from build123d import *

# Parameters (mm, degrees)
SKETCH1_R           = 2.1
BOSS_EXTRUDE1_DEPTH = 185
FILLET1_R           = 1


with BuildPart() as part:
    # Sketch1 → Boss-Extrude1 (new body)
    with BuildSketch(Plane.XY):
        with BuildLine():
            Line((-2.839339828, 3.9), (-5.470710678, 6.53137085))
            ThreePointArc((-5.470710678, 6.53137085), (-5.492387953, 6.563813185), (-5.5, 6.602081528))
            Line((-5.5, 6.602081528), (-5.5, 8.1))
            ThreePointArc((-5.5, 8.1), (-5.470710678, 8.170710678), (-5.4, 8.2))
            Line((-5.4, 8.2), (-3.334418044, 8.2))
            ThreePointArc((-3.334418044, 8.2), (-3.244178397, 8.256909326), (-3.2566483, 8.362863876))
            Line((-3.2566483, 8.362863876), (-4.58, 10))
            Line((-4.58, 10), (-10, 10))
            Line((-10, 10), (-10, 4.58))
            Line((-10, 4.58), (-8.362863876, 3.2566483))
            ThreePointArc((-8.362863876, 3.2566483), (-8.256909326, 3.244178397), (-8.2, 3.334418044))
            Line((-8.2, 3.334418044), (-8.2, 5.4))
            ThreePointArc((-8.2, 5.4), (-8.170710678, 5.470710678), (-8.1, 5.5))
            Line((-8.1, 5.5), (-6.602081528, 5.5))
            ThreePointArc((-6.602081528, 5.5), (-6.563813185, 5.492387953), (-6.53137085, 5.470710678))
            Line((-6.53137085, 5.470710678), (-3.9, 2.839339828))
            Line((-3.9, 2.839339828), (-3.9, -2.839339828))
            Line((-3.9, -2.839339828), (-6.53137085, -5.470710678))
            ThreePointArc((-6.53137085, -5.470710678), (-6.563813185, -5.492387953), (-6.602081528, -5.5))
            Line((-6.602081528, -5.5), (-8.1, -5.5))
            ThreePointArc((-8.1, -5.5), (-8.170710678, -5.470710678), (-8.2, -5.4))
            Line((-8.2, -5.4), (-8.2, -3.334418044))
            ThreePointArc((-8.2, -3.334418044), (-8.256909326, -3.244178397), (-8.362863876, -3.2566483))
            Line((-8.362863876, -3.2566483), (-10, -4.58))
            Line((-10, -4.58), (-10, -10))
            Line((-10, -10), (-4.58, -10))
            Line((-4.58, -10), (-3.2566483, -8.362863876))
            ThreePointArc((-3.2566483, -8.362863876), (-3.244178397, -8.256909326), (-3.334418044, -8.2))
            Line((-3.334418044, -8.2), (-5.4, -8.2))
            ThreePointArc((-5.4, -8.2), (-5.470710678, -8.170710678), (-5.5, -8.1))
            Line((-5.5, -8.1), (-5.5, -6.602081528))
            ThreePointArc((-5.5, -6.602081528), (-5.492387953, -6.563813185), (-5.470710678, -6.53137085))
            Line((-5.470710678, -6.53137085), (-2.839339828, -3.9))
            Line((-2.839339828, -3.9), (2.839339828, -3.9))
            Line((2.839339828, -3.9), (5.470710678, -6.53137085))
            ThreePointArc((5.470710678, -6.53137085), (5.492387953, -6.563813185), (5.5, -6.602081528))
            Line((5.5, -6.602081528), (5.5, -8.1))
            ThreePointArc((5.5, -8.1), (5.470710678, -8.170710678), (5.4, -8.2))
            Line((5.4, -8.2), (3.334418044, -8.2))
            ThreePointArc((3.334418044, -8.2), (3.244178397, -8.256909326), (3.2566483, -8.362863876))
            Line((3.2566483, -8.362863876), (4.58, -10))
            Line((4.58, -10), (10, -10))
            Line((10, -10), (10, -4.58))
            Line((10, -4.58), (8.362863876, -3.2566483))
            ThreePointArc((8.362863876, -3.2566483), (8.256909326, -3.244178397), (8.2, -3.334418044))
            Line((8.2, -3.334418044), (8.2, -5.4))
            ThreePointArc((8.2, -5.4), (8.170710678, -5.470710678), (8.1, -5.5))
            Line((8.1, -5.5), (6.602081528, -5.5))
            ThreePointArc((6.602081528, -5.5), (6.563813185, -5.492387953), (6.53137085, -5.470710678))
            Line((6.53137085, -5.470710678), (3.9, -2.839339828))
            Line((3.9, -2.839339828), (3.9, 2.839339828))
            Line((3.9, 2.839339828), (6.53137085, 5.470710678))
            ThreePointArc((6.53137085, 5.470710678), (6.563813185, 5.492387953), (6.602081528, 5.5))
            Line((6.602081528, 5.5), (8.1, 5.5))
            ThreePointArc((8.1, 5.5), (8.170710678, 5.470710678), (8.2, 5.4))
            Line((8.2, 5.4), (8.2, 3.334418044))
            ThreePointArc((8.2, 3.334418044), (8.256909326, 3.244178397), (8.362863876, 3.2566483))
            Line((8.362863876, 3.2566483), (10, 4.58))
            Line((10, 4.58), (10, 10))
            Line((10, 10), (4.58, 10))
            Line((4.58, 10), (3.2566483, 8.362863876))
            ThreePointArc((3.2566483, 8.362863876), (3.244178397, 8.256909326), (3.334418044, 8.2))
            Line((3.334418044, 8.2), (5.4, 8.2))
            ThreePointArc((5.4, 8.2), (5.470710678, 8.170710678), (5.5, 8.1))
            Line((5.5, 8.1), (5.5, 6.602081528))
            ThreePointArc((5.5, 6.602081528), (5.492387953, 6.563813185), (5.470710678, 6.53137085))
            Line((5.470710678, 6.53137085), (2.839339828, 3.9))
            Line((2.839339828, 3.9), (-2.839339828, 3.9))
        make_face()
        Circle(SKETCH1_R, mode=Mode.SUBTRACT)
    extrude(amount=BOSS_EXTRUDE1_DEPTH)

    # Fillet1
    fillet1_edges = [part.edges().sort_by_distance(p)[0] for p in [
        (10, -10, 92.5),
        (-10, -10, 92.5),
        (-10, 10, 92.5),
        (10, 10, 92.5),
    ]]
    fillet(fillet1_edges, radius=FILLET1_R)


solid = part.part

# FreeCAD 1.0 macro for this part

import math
import FreeCAD as App
import Part
import Sketcher
Q = App.Units.Quantity


def edges_at(feature, points):
    """Names of the edges that pass closest to the given points."""
    edges = feature.Shape.Edges
    near = lambda p: min(range(len(edges)), key=lambda i: edges[i].distToShape(Part.Vertex(*p))[0])
    return sorted({f"Edge{near(p) + 1}" for p in points})

doc = App.newDocument("Part")
body = doc.addObject("PartDesign::Body", "Body")

# Sketch on XY plane
sketch1 = body.newObject("Sketcher::SketchObject", "Sketch")
sketch1.AttachmentSupport = (doc.getObject("XY_Plane"), [""])
sketch1.MapMode = "FlatFace"
sketch1.addGeometry(Part.LineSegment(App.Vector(-2.84, 3.9, 0), App.Vector(-5.47, 6.53, 0)), False)
sketch1.addGeometry(Part.ArcOfCircle(Part.Circle(App.Vector(-5.4, 6.6, 0), App.Vector(0, 0, 1), 0.1), math.radians(-180), math.radians(-135)), False)
sketch1.addGeometry(Part.LineSegment(App.Vector(-5.5, 6.6, 0), App.Vector(-5.5, 8.1, 0)), False)
sketch1.addGeometry(Part.ArcOfCircle(Part.Circle(App.Vector(-5.4, 8.1, 0), App.Vector(0, 0, 1), 0.1), math.radians(90), math.radians(180)), False)
sketch1.addGeometry(Part.LineSegment(App.Vector(-5.4, 8.2, 0), App.Vector(-3.33, 8.2, 0)), False)
sketch1.addGeometry(Part.ArcOfCircle(Part.Circle(App.Vector(-3.33, 8.3, 0), App.Vector(0, 0, 1), 0.1), math.radians(-90), math.radians(39)), False)
sketch1.addGeometry(Part.LineSegment(App.Vector(-3.26, 8.36, 0), App.Vector(-4.58, 10, 0)), False)
sketch1.addGeometry(Part.LineSegment(App.Vector(-4.58, 10, 0), App.Vector(-10, 10, 0)), False)
sketch1.addGeometry(Part.LineSegment(App.Vector(-10, 10, 0), App.Vector(-10, 4.58, 0)), False)
sketch1.addGeometry(Part.LineSegment(App.Vector(-10, 4.58, 0), App.Vector(-8.36, 3.26, 0)), False)
sketch1.addGeometry(Part.ArcOfCircle(Part.Circle(App.Vector(-8.3, 3.33, 0), App.Vector(0, 0, 1), 0.1), math.radians(-129), math.radians(0)), False)
sketch1.addGeometry(Part.LineSegment(App.Vector(-8.2, 3.33, 0), App.Vector(-8.2, 5.4, 0)), False)
sketch1.addGeometry(Part.ArcOfCircle(Part.Circle(App.Vector(-8.1, 5.4, 0), App.Vector(0, 0, 1), 0.1), math.radians(90), math.radians(180)), False)
sketch1.addGeometry(Part.LineSegment(App.Vector(-8.1, 5.5, 0), App.Vector(-6.6, 5.5, 0)), False)
sketch1.addGeometry(Part.ArcOfCircle(Part.Circle(App.Vector(-6.6, 5.4, 0), App.Vector(0, 0, 1), 0.1), math.radians(45), math.radians(90)), False)
sketch1.addGeometry(Part.LineSegment(App.Vector(-6.53, 5.47, 0), App.Vector(-3.9, 2.84, 0)), False)
sketch1.addGeometry(Part.LineSegment(App.Vector(-3.9, 2.84, 0), App.Vector(-3.9, -2.84, 0)), False)
sketch1.addGeometry(Part.LineSegment(App.Vector(-3.9, -2.84, 0), App.Vector(-6.53, -5.47, 0)), False)
sketch1.addGeometry(Part.ArcOfCircle(Part.Circle(App.Vector(-6.6, -5.4, 0), App.Vector(0, 0, 1), 0.1), math.radians(-90), math.radians(-45)), False)
sketch1.addGeometry(Part.LineSegment(App.Vector(-6.6, -5.5, 0), App.Vector(-8.1, -5.5, 0)), False)
sketch1.addGeometry(Part.ArcOfCircle(Part.Circle(App.Vector(-8.1, -5.4, 0), App.Vector(0, 0, 1), 0.1), math.radians(180), math.radians(270)), False)
sketch1.addGeometry(Part.LineSegment(App.Vector(-8.2, -5.4, 0), App.Vector(-8.2, -3.33, 0)), False)
sketch1.addGeometry(Part.ArcOfCircle(Part.Circle(App.Vector(-8.3, -3.33, 0), App.Vector(0, 0, 1), 0.1), math.radians(0), math.radians(129)), False)
sketch1.addGeometry(Part.LineSegment(App.Vector(-8.36, -3.26, 0), App.Vector(-10, -4.58, 0)), False)
sketch1.addGeometry(Part.LineSegment(App.Vector(-10, -4.58, 0), App.Vector(-10, -10, 0)), False)
sketch1.addGeometry(Part.LineSegment(App.Vector(-10, -10, 0), App.Vector(-4.58, -10, 0)), False)
sketch1.addGeometry(Part.LineSegment(App.Vector(-4.58, -10, 0), App.Vector(-3.26, -8.36, 0)), False)
sketch1.addGeometry(Part.ArcOfCircle(Part.Circle(App.Vector(-3.33, -8.3, 0), App.Vector(0, 0, 1), 0.1), math.radians(-39), math.radians(90)), False)
sketch1.addGeometry(Part.LineSegment(App.Vector(-3.33, -8.2, 0), App.Vector(-5.4, -8.2, 0)), False)
sketch1.addGeometry(Part.ArcOfCircle(Part.Circle(App.Vector(-5.4, -8.1, 0), App.Vector(0, 0, 1), 0.1), math.radians(180), math.radians(270)), False)
sketch1.addGeometry(Part.LineSegment(App.Vector(-5.5, -8.1, 0), App.Vector(-5.5, -6.6, 0)), False)
sketch1.addGeometry(Part.ArcOfCircle(Part.Circle(App.Vector(-5.4, -6.6, 0), App.Vector(0, 0, 1), 0.1), math.radians(135), math.radians(180)), False)
sketch1.addGeometry(Part.LineSegment(App.Vector(-5.47, -6.53, 0), App.Vector(-2.84, -3.9, 0)), False)
sketch1.addGeometry(Part.LineSegment(App.Vector(-2.84, -3.9, 0), App.Vector(2.84, -3.9, 0)), False)
sketch1.addGeometry(Part.LineSegment(App.Vector(2.84, -3.9, 0), App.Vector(5.47, -6.53, 0)), False)
sketch1.addGeometry(Part.ArcOfCircle(Part.Circle(App.Vector(5.4, -6.6, 0), App.Vector(0, 0, 1), 0.1), math.radians(0), math.radians(45)), False)
sketch1.addGeometry(Part.LineSegment(App.Vector(5.5, -6.6, 0), App.Vector(5.5, -8.1, 0)), False)
sketch1.addGeometry(Part.ArcOfCircle(Part.Circle(App.Vector(5.4, -8.1, 0), App.Vector(0, 0, 1), 0.1), math.radians(-90), math.radians(0)), False)
sketch1.addGeometry(Part.LineSegment(App.Vector(5.4, -8.2, 0), App.Vector(3.33, -8.2, 0)), False)
sketch1.addGeometry(Part.ArcOfCircle(Part.Circle(App.Vector(3.33, -8.3, 0), App.Vector(0, 0, 1), 0.1), math.radians(90), math.radians(219)), False)
sketch1.addGeometry(Part.LineSegment(App.Vector(3.26, -8.36, 0), App.Vector(4.58, -10, 0)), False)
sketch1.addGeometry(Part.LineSegment(App.Vector(4.58, -10, 0), App.Vector(10, -10, 0)), False)
sketch1.addGeometry(Part.LineSegment(App.Vector(10, -10, 0), App.Vector(10, -4.58, 0)), False)
sketch1.addGeometry(Part.LineSegment(App.Vector(10, -4.58, 0), App.Vector(8.36, -3.26, 0)), False)
sketch1.addGeometry(Part.ArcOfCircle(Part.Circle(App.Vector(8.3, -3.33, 0), App.Vector(0, 0, 1), 0.1), math.radians(51), math.radians(180)), False)
sketch1.addGeometry(Part.LineSegment(App.Vector(8.2, -3.33, 0), App.Vector(8.2, -5.4, 0)), False)
sketch1.addGeometry(Part.ArcOfCircle(Part.Circle(App.Vector(8.1, -5.4, 0), App.Vector(0, 0, 1), 0.1), math.radians(-90), math.radians(0)), False)
sketch1.addGeometry(Part.LineSegment(App.Vector(8.1, -5.5, 0), App.Vector(6.6, -5.5, 0)), False)
sketch1.addGeometry(Part.ArcOfCircle(Part.Circle(App.Vector(6.6, -5.4, 0), App.Vector(0, 0, 1), 0.1), math.radians(-135), math.radians(-90)), False)
sketch1.addGeometry(Part.LineSegment(App.Vector(6.53, -5.47, 0), App.Vector(3.9, -2.84, 0)), False)
sketch1.addGeometry(Part.LineSegment(App.Vector(3.9, -2.84, 0), App.Vector(3.9, 2.84, 0)), False)
sketch1.addGeometry(Part.LineSegment(App.Vector(3.9, 2.84, 0), App.Vector(6.53, 5.47, 0)), False)
sketch1.addGeometry(Part.ArcOfCircle(Part.Circle(App.Vector(6.6, 5.4, 0), App.Vector(0, 0, 1), 0.1), math.radians(90), math.radians(135)), False)
sketch1.addGeometry(Part.LineSegment(App.Vector(6.6, 5.5, 0), App.Vector(8.1, 5.5, 0)), False)
sketch1.addGeometry(Part.ArcOfCircle(Part.Circle(App.Vector(8.1, 5.4, 0), App.Vector(0, 0, 1), 0.1), math.radians(0), math.radians(90)), False)
sketch1.addGeometry(Part.LineSegment(App.Vector(8.2, 5.4, 0), App.Vector(8.2, 3.33, 0)), False)
sketch1.addGeometry(Part.ArcOfCircle(Part.Circle(App.Vector(8.3, 3.33, 0), App.Vector(0, 0, 1), 0.1), math.radians(180), math.radians(309)), False)
sketch1.addGeometry(Part.LineSegment(App.Vector(8.36, 3.26, 0), App.Vector(10, 4.58, 0)), False)
sketch1.addGeometry(Part.LineSegment(App.Vector(10, 4.58, 0), App.Vector(10, 10, 0)), False)
sketch1.addGeometry(Part.LineSegment(App.Vector(10, 10, 0), App.Vector(4.58, 10, 0)), False)
sketch1.addGeometry(Part.LineSegment(App.Vector(4.58, 10, 0), App.Vector(3.26, 8.36, 0)), False)
sketch1.addGeometry(Part.ArcOfCircle(Part.Circle(App.Vector(3.33, 8.3, 0), App.Vector(0, 0, 1), 0.1), math.radians(141), math.radians(270)), False)
sketch1.addGeometry(Part.LineSegment(App.Vector(3.33, 8.2, 0), App.Vector(5.4, 8.2, 0)), False)
sketch1.addGeometry(Part.ArcOfCircle(Part.Circle(App.Vector(5.4, 8.1, 0), App.Vector(0, 0, 1), 0.1), math.radians(0), math.radians(90)), False)
sketch1.addGeometry(Part.LineSegment(App.Vector(5.5, 8.1, 0), App.Vector(5.5, 6.6, 0)), False)
sketch1.addGeometry(Part.ArcOfCircle(Part.Circle(App.Vector(5.4, 6.6, 0), App.Vector(0, 0, 1), 0.1), math.radians(-45), math.radians(0)), False)
sketch1.addGeometry(Part.LineSegment(App.Vector(5.47, 6.53, 0), App.Vector(2.84, 3.9, 0)), False)
sketch1.addGeometry(Part.LineSegment(App.Vector(2.84, 3.9, 0), App.Vector(-2.84, 3.9, 0)), False)
sketch1.addGeometry(Part.Circle(App.Vector(0, 0, 0), App.Vector(0, 0, 1), 2.1), False)
sketch1.addConstraint(Sketcher.Constraint("Tangent", 0, 2, 1, 2))
sketch1.addConstraint(Sketcher.Constraint("Tangent", 1, 1, 2, 1))
sketch1.addConstraint(Sketcher.Constraint("Tangent", 2, 2, 3, 2))
sketch1.addConstraint(Sketcher.Constraint("Tangent", 3, 1, 4, 1))
sketch1.addConstraint(Sketcher.Constraint("Tangent", 4, 2, 5, 1))
sketch1.addConstraint(Sketcher.Constraint("Tangent", 5, 2, 6, 1))
sketch1.addConstraint(Sketcher.Constraint("Coincident", 6, 2, 7, 1))
sketch1.addConstraint(Sketcher.Constraint("Coincident", 7, 2, 8, 1))
sketch1.addConstraint(Sketcher.Constraint("Coincident", 8, 2, 9, 1))
sketch1.addConstraint(Sketcher.Constraint("Tangent", 9, 2, 10, 1))
sketch1.addConstraint(Sketcher.Constraint("Tangent", 10, 2, 11, 1))
sketch1.addConstraint(Sketcher.Constraint("Tangent", 11, 2, 12, 2))
sketch1.addConstraint(Sketcher.Constraint("Tangent", 12, 1, 13, 1))
sketch1.addConstraint(Sketcher.Constraint("Tangent", 13, 2, 14, 2))
sketch1.addConstraint(Sketcher.Constraint("Tangent", 14, 1, 15, 1))
sketch1.addConstraint(Sketcher.Constraint("Coincident", 15, 2, 16, 1))
sketch1.addConstraint(Sketcher.Constraint("Coincident", 16, 2, 17, 1))
sketch1.addConstraint(Sketcher.Constraint("Tangent", 17, 2, 18, 2))
sketch1.addConstraint(Sketcher.Constraint("Tangent", 18, 1, 19, 1))
sketch1.addConstraint(Sketcher.Constraint("Tangent", 19, 2, 20, 2))
sketch1.addConstraint(Sketcher.Constraint("Tangent", 20, 1, 21, 1))
sketch1.addConstraint(Sketcher.Constraint("Tangent", 21, 2, 22, 1))
sketch1.addConstraint(Sketcher.Constraint("Tangent", 22, 2, 23, 1))
sketch1.addConstraint(Sketcher.Constraint("Coincident", 23, 2, 24, 1))
sketch1.addConstraint(Sketcher.Constraint("Coincident", 24, 2, 25, 1))
sketch1.addConstraint(Sketcher.Constraint("Coincident", 25, 2, 26, 1))
sketch1.addConstraint(Sketcher.Constraint("Tangent", 26, 2, 27, 1))
sketch1.addConstraint(Sketcher.Constraint("Tangent", 27, 2, 28, 1))
sketch1.addConstraint(Sketcher.Constraint("Tangent", 28, 2, 29, 2))
sketch1.addConstraint(Sketcher.Constraint("Tangent", 29, 1, 30, 1))
sketch1.addConstraint(Sketcher.Constraint("Tangent", 30, 2, 31, 2))
sketch1.addConstraint(Sketcher.Constraint("Tangent", 31, 1, 32, 1))
sketch1.addConstraint(Sketcher.Constraint("Coincident", 32, 2, 33, 1))
sketch1.addConstraint(Sketcher.Constraint("Coincident", 33, 2, 34, 1))
sketch1.addConstraint(Sketcher.Constraint("Tangent", 34, 2, 35, 2))
sketch1.addConstraint(Sketcher.Constraint("Tangent", 35, 1, 36, 1))
sketch1.addConstraint(Sketcher.Constraint("Tangent", 36, 2, 37, 2))
sketch1.addConstraint(Sketcher.Constraint("Tangent", 37, 1, 38, 1))
sketch1.addConstraint(Sketcher.Constraint("Tangent", 38, 2, 39, 1))
sketch1.addConstraint(Sketcher.Constraint("Tangent", 39, 2, 40, 1))
sketch1.addConstraint(Sketcher.Constraint("Coincident", 40, 2, 41, 1))
sketch1.addConstraint(Sketcher.Constraint("Coincident", 41, 2, 42, 1))
sketch1.addConstraint(Sketcher.Constraint("Coincident", 42, 2, 43, 1))
sketch1.addConstraint(Sketcher.Constraint("Tangent", 43, 2, 44, 1))
sketch1.addConstraint(Sketcher.Constraint("Tangent", 44, 2, 45, 1))
sketch1.addConstraint(Sketcher.Constraint("Tangent", 45, 2, 46, 2))
sketch1.addConstraint(Sketcher.Constraint("Tangent", 46, 1, 47, 1))
sketch1.addConstraint(Sketcher.Constraint("Tangent", 47, 2, 48, 2))
sketch1.addConstraint(Sketcher.Constraint("Tangent", 48, 1, 49, 1))
sketch1.addConstraint(Sketcher.Constraint("Coincident", 49, 2, 50, 1))
sketch1.addConstraint(Sketcher.Constraint("Coincident", 50, 2, 51, 1))
sketch1.addConstraint(Sketcher.Constraint("Tangent", 51, 2, 52, 2))
sketch1.addConstraint(Sketcher.Constraint("Tangent", 52, 1, 53, 1))
sketch1.addConstraint(Sketcher.Constraint("Tangent", 53, 2, 54, 2))
sketch1.addConstraint(Sketcher.Constraint("Tangent", 54, 1, 55, 1))
sketch1.addConstraint(Sketcher.Constraint("Tangent", 55, 2, 56, 1))
sketch1.addConstraint(Sketcher.Constraint("Tangent", 56, 2, 57, 1))
sketch1.addConstraint(Sketcher.Constraint("Coincident", 57, 2, 58, 1))
sketch1.addConstraint(Sketcher.Constraint("Coincident", 58, 2, 59, 1))
sketch1.addConstraint(Sketcher.Constraint("Coincident", 59, 2, 60, 1))
sketch1.addConstraint(Sketcher.Constraint("Tangent", 60, 2, 61, 1))
sketch1.addConstraint(Sketcher.Constraint("Tangent", 61, 2, 62, 1))
sketch1.addConstraint(Sketcher.Constraint("Tangent", 62, 2, 63, 2))
sketch1.addConstraint(Sketcher.Constraint("Tangent", 63, 1, 64, 1))
sketch1.addConstraint(Sketcher.Constraint("Tangent", 64, 2, 65, 2))
sketch1.addConstraint(Sketcher.Constraint("Tangent", 65, 1, 66, 1))
sketch1.addConstraint(Sketcher.Constraint("Coincident", 66, 2, 67, 1))
sketch1.addConstraint(Sketcher.Constraint("Coincident", 67, 2, 0, 1))
sketch1.addConstraint(Sketcher.Constraint("Vertical", 2))
sketch1.addConstraint(Sketcher.Constraint("Horizontal", 4))
sketch1.addConstraint(Sketcher.Constraint("Horizontal", 7))
sketch1.addConstraint(Sketcher.Constraint("Vertical", 8))
sketch1.addConstraint(Sketcher.Constraint("Vertical", 11))
sketch1.addConstraint(Sketcher.Constraint("Horizontal", 13))
sketch1.addConstraint(Sketcher.Constraint("Vertical", 16))
sketch1.addConstraint(Sketcher.Constraint("Horizontal", 19))
sketch1.addConstraint(Sketcher.Constraint("Vertical", 21))
sketch1.addConstraint(Sketcher.Constraint("Vertical", 24))
sketch1.addConstraint(Sketcher.Constraint("Horizontal", 25))
sketch1.addConstraint(Sketcher.Constraint("Horizontal", 28))
sketch1.addConstraint(Sketcher.Constraint("Vertical", 30))
sketch1.addConstraint(Sketcher.Constraint("Horizontal", 33))
sketch1.addConstraint(Sketcher.Constraint("Vertical", 36))
sketch1.addConstraint(Sketcher.Constraint("Horizontal", 38))
sketch1.addConstraint(Sketcher.Constraint("Horizontal", 41))
sketch1.addConstraint(Sketcher.Constraint("Vertical", 42))
sketch1.addConstraint(Sketcher.Constraint("Vertical", 45))
sketch1.addConstraint(Sketcher.Constraint("Horizontal", 47))
sketch1.addConstraint(Sketcher.Constraint("Vertical", 50))
sketch1.addConstraint(Sketcher.Constraint("Horizontal", 53))
sketch1.addConstraint(Sketcher.Constraint("Vertical", 55))
sketch1.addConstraint(Sketcher.Constraint("Vertical", 58))
sketch1.addConstraint(Sketcher.Constraint("Horizontal", 59))
sketch1.addConstraint(Sketcher.Constraint("Horizontal", 62))
sketch1.addConstraint(Sketcher.Constraint("Vertical", 64))
sketch1.addConstraint(Sketcher.Constraint("Horizontal", 67))
sketch1.addConstraint(Sketcher.Constraint("Coincident", 68, 3, -1, 1))
sketch1.addConstraint(Sketcher.Constraint("Equal", 1, 3))
sketch1.addConstraint(Sketcher.Constraint("Equal", 3, 5))
sketch1.addConstraint(Sketcher.Constraint("Equal", 5, 10))
sketch1.addConstraint(Sketcher.Constraint("Equal", 10, 12))
sketch1.addConstraint(Sketcher.Constraint("Equal", 12, 14))
sketch1.addConstraint(Sketcher.Constraint("Equal", 14, 18))
sketch1.addConstraint(Sketcher.Constraint("Equal", 18, 20))
sketch1.addConstraint(Sketcher.Constraint("Equal", 20, 22))
sketch1.addConstraint(Sketcher.Constraint("Equal", 22, 27))
sketch1.addConstraint(Sketcher.Constraint("Equal", 27, 29))
sketch1.addConstraint(Sketcher.Constraint("Equal", 29, 31))
sketch1.addConstraint(Sketcher.Constraint("Equal", 31, 35))
sketch1.addConstraint(Sketcher.Constraint("Equal", 35, 37))
sketch1.addConstraint(Sketcher.Constraint("Equal", 37, 39))
sketch1.addConstraint(Sketcher.Constraint("Equal", 39, 44))
sketch1.addConstraint(Sketcher.Constraint("Equal", 44, 46))
sketch1.addConstraint(Sketcher.Constraint("Equal", 46, 48))
sketch1.addConstraint(Sketcher.Constraint("Equal", 48, 52))
sketch1.addConstraint(Sketcher.Constraint("Equal", 52, 54))
sketch1.addConstraint(Sketcher.Constraint("Equal", 54, 56))
sketch1.addConstraint(Sketcher.Constraint("Equal", 56, 61))
sketch1.addConstraint(Sketcher.Constraint("Equal", 61, 63))
sketch1.addConstraint(Sketcher.Constraint("Equal", 63, 65))
sketch1.addConstraint(Sketcher.Constraint("Symmetric", 1, 3, 35, 3, -1, 1))
sketch1.addConstraint(Sketcher.Constraint("Symmetric", 5, 3, 39, 3, -1, 1))
sketch1.addConstraint(Sketcher.Constraint("Symmetric", 10, 3, 44, 3, -1, 1))
sketch1.addConstraint(Sketcher.Constraint("Symmetric", 14, 3, 48, 3, -1, 1))
sketch1.addConstraint(Sketcher.Constraint("Symmetric", 18, 3, 52, 3, -1, 1))
sketch1.addConstraint(Sketcher.Constraint("Symmetric", 22, 3, 56, 3, -1, 1))
sketch1.addConstraint(Sketcher.Constraint("Symmetric", 27, 3, 61, 3, -1, 1))
sketch1.addConstraint(Sketcher.Constraint("Symmetric", 31, 3, 65, 3, -1, 1))
sketch1.addConstraint(Sketcher.Constraint("Symmetric", 6, 2, 40, 2, -1, 1))
sketch1.addConstraint(Sketcher.Constraint("Symmetric", 8, 2, 42, 2, -1, 1))
sketch1.addConstraint(Sketcher.Constraint("Symmetric", 15, 2, 49, 2, -1, 1))
sketch1.addConstraint(Sketcher.Constraint("Symmetric", 23, 2, 57, 2, -1, 1))
sketch1.addConstraint(Sketcher.Constraint("Symmetric", 25, 2, 59, 2, -1, 1))
sketch1.addConstraint(Sketcher.Constraint("Symmetric", 32, 2, 66, 2, -1, 1))
sketch1.addConstraint(Sketcher.Constraint("Symmetric", 31, 3, 35, 3, -2))
sketch1.addConstraint(Sketcher.Constraint("Symmetric", 27, 3, 39, 3, -2))
sketch1.addConstraint(Sketcher.Constraint("Symmetric", 22, 3, 44, 3, -2))
sketch1.addConstraint(Sketcher.Constraint("Symmetric", 18, 3, 48, 3, -2))
sketch1.addConstraint(Sketcher.Constraint("Symmetric", 25, 2, 40, 2, -2))
sketch1.addConstraint(Sketcher.Constraint("Symmetric", 23, 2, 42, 2, -2))
sketch1.addConstraint(Sketcher.Constraint("Parallel", 0, 15))
sketch1.addConstraint(Sketcher.Constraint("Perpendicular", 15, 17))
sketch1.addConstraint(Sketcher.Constraint("Perpendicular", 6, 23))
sketch1.addConstraint(Sketcher.Constraint("Parallel", 17, 32))
sketch1.addConstraint(Sketcher.Constraint("Perpendicular", 32, 34))
sketch1.addConstraint(Sketcher.Constraint("Perpendicular", 49, 51))
sketch1.addConstraint(Sketcher.Constraint("Horizontal", 31, 1, 34, 2))
sketch1.addConstraint(Sketcher.Constraint("Equal", 53, 2))
sketch1.addConstraint(Sketcher.Constraint("Equal", 59, 8))
sketch1.addConstraint(Sketcher.Constraint("Equal", 62, 11))
sketch1.addConstraint(Sketcher.Constraint("Equal", 67, 16))
sketch1.addConstraint(Sketcher.Constraint("Equal", 6, 9))
sketch1.addConstraint(Sketcher.Constraint("Equal", 0, 15))
sketch1.addConstraint(Sketcher.Constraint("Diameter", 68, Q("4.2 mm")))
sketch1.addConstraint(Sketcher.Constraint("Radius", 1, Q("0.1 mm")))
sketch1.addConstraint(Sketcher.Constraint("DistanceY", -1, 1, 6, 2, Q("10 mm")))
sketch1.addConstraint(Sketcher.Constraint("DistanceX", 7, 2, 7, 1, Q("5.42 mm")))
sketch1.addConstraint(Sketcher.Constraint("DistanceX", 1, 3, -1, 1, Q("5.4 mm")))
sketch1.addConstraint(Sketcher.Constraint("DistanceY", -1, 1, 3, 3, Q("8.1 mm")))
sketch1.addConstraint(Sketcher.Constraint("DistanceX", 15, 2, -1, 1, Q("3.9 mm")))
sketch1.addConstraint(Sketcher.Constraint("DistanceX", 4, 1, 4, 2, Q("2.065582 mm")))
sketch1.addConstraint(Sketcher.Constraint("DistanceX", 13, 1, 13, 2, Q("1.497918 mm")))
pad1 = body.newObject("PartDesign::Pad", "Pad")
pad1.Profile = sketch1
pad1.Length = 185
doc.recompute()

fillet = body.newObject("PartDesign::Fillet", "Fillet")
fillet.Base = (pad1, edges_at(pad1, [
    (10, -10, 92.5),
    (-10, -10, 92.5),
    (-10, 10, 92.5),
    (10, 10, 92.5),
]))
fillet.Radius = 1

doc.recompute()
